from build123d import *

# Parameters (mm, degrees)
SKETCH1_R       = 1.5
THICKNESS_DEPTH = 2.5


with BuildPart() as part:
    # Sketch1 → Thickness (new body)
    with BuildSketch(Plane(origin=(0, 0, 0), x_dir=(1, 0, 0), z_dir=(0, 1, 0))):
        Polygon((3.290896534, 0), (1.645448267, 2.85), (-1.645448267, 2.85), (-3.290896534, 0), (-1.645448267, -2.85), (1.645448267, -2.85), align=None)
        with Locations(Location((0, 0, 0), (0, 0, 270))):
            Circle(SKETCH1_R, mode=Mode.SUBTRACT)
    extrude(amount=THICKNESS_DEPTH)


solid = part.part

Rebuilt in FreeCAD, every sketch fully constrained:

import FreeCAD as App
import Part
import Sketcher
Q = App.Units.Quantity


def add_polygon(sketch, points):
    """Adds a closed chain of lines whose ends are joined by coincident constraints."""
    first, n = sketch.GeometryCount, len(points)
    for a, b in zip(points, points[1:] + points[:1]):
        sketch.addGeometry(Part.LineSegment(App.Vector(*a, 0), App.Vector(*b, 0)), False)
    for i in range(n):
        sketch.addConstraint(Sketcher.Constraint("Coincident", first + i, 2, first + (i + 1) % n, 1))

doc = App.newDocument("Part")
body = doc.addObject("PartDesign::Body", "Body")

sketch1 = doc.addObject("Sketcher::SketchObject", "Sketch")
body.addObject(sketch1)
sketch1.AttachmentSupport = (doc.XZ_Plane, [""])
sketch1.MapMode = "FlatFace"
add_polygon(sketch1, [(3.3, 0), (1.6, -2.9), (-1.6, -2.9), (-3.3, 0), (-1.6, 2.9), (1.6, 2.9)])
sketch1.addGeometry(Part.Circle(App.Vector(0, 0, 0), App.Vector(0, 0, 1), 1.5), False)
sketch1.addConstraint([
    Sketcher.Constraint("Horizontal", 1),
    Sketcher.Constraint("Horizontal", 4),
    Sketcher.Constraint("Coincident", 6, 3, -1, 1),
    Sketcher.Constraint("Symmetric", 0, 2, 3, 2, -1, 1),
    Sketcher.Constraint("Symmetric", 2, 2, 5, 2, -1, 1),
    Sketcher.Constraint("PointOnObject", 2, 2, -1),
    Sketcher.Constraint("Parallel", 2, 5),
    Sketcher.Constraint("Vertical", 1, 2, 3, 2),
    Sketcher.Constraint("Diameter", 6, Q("3 mm")),
    Sketcher.Constraint("Angle", 0, Q("-120 deg")),
    Sketcher.Constraint("DistanceY", 1, 2, 3, 2, Q("5.7 mm")),
    Sketcher.Constraint("DistanceX", 1, 2, 1, 1, Q("3.290897 mm")),
])
pad1 = doc.addObject("PartDesign::Pad", "Pad")
body.addObject(pad1)
pad1.Profile = sketch1
pad1.Length = 2.5
pad1.Reversed = True

doc.recompute()
